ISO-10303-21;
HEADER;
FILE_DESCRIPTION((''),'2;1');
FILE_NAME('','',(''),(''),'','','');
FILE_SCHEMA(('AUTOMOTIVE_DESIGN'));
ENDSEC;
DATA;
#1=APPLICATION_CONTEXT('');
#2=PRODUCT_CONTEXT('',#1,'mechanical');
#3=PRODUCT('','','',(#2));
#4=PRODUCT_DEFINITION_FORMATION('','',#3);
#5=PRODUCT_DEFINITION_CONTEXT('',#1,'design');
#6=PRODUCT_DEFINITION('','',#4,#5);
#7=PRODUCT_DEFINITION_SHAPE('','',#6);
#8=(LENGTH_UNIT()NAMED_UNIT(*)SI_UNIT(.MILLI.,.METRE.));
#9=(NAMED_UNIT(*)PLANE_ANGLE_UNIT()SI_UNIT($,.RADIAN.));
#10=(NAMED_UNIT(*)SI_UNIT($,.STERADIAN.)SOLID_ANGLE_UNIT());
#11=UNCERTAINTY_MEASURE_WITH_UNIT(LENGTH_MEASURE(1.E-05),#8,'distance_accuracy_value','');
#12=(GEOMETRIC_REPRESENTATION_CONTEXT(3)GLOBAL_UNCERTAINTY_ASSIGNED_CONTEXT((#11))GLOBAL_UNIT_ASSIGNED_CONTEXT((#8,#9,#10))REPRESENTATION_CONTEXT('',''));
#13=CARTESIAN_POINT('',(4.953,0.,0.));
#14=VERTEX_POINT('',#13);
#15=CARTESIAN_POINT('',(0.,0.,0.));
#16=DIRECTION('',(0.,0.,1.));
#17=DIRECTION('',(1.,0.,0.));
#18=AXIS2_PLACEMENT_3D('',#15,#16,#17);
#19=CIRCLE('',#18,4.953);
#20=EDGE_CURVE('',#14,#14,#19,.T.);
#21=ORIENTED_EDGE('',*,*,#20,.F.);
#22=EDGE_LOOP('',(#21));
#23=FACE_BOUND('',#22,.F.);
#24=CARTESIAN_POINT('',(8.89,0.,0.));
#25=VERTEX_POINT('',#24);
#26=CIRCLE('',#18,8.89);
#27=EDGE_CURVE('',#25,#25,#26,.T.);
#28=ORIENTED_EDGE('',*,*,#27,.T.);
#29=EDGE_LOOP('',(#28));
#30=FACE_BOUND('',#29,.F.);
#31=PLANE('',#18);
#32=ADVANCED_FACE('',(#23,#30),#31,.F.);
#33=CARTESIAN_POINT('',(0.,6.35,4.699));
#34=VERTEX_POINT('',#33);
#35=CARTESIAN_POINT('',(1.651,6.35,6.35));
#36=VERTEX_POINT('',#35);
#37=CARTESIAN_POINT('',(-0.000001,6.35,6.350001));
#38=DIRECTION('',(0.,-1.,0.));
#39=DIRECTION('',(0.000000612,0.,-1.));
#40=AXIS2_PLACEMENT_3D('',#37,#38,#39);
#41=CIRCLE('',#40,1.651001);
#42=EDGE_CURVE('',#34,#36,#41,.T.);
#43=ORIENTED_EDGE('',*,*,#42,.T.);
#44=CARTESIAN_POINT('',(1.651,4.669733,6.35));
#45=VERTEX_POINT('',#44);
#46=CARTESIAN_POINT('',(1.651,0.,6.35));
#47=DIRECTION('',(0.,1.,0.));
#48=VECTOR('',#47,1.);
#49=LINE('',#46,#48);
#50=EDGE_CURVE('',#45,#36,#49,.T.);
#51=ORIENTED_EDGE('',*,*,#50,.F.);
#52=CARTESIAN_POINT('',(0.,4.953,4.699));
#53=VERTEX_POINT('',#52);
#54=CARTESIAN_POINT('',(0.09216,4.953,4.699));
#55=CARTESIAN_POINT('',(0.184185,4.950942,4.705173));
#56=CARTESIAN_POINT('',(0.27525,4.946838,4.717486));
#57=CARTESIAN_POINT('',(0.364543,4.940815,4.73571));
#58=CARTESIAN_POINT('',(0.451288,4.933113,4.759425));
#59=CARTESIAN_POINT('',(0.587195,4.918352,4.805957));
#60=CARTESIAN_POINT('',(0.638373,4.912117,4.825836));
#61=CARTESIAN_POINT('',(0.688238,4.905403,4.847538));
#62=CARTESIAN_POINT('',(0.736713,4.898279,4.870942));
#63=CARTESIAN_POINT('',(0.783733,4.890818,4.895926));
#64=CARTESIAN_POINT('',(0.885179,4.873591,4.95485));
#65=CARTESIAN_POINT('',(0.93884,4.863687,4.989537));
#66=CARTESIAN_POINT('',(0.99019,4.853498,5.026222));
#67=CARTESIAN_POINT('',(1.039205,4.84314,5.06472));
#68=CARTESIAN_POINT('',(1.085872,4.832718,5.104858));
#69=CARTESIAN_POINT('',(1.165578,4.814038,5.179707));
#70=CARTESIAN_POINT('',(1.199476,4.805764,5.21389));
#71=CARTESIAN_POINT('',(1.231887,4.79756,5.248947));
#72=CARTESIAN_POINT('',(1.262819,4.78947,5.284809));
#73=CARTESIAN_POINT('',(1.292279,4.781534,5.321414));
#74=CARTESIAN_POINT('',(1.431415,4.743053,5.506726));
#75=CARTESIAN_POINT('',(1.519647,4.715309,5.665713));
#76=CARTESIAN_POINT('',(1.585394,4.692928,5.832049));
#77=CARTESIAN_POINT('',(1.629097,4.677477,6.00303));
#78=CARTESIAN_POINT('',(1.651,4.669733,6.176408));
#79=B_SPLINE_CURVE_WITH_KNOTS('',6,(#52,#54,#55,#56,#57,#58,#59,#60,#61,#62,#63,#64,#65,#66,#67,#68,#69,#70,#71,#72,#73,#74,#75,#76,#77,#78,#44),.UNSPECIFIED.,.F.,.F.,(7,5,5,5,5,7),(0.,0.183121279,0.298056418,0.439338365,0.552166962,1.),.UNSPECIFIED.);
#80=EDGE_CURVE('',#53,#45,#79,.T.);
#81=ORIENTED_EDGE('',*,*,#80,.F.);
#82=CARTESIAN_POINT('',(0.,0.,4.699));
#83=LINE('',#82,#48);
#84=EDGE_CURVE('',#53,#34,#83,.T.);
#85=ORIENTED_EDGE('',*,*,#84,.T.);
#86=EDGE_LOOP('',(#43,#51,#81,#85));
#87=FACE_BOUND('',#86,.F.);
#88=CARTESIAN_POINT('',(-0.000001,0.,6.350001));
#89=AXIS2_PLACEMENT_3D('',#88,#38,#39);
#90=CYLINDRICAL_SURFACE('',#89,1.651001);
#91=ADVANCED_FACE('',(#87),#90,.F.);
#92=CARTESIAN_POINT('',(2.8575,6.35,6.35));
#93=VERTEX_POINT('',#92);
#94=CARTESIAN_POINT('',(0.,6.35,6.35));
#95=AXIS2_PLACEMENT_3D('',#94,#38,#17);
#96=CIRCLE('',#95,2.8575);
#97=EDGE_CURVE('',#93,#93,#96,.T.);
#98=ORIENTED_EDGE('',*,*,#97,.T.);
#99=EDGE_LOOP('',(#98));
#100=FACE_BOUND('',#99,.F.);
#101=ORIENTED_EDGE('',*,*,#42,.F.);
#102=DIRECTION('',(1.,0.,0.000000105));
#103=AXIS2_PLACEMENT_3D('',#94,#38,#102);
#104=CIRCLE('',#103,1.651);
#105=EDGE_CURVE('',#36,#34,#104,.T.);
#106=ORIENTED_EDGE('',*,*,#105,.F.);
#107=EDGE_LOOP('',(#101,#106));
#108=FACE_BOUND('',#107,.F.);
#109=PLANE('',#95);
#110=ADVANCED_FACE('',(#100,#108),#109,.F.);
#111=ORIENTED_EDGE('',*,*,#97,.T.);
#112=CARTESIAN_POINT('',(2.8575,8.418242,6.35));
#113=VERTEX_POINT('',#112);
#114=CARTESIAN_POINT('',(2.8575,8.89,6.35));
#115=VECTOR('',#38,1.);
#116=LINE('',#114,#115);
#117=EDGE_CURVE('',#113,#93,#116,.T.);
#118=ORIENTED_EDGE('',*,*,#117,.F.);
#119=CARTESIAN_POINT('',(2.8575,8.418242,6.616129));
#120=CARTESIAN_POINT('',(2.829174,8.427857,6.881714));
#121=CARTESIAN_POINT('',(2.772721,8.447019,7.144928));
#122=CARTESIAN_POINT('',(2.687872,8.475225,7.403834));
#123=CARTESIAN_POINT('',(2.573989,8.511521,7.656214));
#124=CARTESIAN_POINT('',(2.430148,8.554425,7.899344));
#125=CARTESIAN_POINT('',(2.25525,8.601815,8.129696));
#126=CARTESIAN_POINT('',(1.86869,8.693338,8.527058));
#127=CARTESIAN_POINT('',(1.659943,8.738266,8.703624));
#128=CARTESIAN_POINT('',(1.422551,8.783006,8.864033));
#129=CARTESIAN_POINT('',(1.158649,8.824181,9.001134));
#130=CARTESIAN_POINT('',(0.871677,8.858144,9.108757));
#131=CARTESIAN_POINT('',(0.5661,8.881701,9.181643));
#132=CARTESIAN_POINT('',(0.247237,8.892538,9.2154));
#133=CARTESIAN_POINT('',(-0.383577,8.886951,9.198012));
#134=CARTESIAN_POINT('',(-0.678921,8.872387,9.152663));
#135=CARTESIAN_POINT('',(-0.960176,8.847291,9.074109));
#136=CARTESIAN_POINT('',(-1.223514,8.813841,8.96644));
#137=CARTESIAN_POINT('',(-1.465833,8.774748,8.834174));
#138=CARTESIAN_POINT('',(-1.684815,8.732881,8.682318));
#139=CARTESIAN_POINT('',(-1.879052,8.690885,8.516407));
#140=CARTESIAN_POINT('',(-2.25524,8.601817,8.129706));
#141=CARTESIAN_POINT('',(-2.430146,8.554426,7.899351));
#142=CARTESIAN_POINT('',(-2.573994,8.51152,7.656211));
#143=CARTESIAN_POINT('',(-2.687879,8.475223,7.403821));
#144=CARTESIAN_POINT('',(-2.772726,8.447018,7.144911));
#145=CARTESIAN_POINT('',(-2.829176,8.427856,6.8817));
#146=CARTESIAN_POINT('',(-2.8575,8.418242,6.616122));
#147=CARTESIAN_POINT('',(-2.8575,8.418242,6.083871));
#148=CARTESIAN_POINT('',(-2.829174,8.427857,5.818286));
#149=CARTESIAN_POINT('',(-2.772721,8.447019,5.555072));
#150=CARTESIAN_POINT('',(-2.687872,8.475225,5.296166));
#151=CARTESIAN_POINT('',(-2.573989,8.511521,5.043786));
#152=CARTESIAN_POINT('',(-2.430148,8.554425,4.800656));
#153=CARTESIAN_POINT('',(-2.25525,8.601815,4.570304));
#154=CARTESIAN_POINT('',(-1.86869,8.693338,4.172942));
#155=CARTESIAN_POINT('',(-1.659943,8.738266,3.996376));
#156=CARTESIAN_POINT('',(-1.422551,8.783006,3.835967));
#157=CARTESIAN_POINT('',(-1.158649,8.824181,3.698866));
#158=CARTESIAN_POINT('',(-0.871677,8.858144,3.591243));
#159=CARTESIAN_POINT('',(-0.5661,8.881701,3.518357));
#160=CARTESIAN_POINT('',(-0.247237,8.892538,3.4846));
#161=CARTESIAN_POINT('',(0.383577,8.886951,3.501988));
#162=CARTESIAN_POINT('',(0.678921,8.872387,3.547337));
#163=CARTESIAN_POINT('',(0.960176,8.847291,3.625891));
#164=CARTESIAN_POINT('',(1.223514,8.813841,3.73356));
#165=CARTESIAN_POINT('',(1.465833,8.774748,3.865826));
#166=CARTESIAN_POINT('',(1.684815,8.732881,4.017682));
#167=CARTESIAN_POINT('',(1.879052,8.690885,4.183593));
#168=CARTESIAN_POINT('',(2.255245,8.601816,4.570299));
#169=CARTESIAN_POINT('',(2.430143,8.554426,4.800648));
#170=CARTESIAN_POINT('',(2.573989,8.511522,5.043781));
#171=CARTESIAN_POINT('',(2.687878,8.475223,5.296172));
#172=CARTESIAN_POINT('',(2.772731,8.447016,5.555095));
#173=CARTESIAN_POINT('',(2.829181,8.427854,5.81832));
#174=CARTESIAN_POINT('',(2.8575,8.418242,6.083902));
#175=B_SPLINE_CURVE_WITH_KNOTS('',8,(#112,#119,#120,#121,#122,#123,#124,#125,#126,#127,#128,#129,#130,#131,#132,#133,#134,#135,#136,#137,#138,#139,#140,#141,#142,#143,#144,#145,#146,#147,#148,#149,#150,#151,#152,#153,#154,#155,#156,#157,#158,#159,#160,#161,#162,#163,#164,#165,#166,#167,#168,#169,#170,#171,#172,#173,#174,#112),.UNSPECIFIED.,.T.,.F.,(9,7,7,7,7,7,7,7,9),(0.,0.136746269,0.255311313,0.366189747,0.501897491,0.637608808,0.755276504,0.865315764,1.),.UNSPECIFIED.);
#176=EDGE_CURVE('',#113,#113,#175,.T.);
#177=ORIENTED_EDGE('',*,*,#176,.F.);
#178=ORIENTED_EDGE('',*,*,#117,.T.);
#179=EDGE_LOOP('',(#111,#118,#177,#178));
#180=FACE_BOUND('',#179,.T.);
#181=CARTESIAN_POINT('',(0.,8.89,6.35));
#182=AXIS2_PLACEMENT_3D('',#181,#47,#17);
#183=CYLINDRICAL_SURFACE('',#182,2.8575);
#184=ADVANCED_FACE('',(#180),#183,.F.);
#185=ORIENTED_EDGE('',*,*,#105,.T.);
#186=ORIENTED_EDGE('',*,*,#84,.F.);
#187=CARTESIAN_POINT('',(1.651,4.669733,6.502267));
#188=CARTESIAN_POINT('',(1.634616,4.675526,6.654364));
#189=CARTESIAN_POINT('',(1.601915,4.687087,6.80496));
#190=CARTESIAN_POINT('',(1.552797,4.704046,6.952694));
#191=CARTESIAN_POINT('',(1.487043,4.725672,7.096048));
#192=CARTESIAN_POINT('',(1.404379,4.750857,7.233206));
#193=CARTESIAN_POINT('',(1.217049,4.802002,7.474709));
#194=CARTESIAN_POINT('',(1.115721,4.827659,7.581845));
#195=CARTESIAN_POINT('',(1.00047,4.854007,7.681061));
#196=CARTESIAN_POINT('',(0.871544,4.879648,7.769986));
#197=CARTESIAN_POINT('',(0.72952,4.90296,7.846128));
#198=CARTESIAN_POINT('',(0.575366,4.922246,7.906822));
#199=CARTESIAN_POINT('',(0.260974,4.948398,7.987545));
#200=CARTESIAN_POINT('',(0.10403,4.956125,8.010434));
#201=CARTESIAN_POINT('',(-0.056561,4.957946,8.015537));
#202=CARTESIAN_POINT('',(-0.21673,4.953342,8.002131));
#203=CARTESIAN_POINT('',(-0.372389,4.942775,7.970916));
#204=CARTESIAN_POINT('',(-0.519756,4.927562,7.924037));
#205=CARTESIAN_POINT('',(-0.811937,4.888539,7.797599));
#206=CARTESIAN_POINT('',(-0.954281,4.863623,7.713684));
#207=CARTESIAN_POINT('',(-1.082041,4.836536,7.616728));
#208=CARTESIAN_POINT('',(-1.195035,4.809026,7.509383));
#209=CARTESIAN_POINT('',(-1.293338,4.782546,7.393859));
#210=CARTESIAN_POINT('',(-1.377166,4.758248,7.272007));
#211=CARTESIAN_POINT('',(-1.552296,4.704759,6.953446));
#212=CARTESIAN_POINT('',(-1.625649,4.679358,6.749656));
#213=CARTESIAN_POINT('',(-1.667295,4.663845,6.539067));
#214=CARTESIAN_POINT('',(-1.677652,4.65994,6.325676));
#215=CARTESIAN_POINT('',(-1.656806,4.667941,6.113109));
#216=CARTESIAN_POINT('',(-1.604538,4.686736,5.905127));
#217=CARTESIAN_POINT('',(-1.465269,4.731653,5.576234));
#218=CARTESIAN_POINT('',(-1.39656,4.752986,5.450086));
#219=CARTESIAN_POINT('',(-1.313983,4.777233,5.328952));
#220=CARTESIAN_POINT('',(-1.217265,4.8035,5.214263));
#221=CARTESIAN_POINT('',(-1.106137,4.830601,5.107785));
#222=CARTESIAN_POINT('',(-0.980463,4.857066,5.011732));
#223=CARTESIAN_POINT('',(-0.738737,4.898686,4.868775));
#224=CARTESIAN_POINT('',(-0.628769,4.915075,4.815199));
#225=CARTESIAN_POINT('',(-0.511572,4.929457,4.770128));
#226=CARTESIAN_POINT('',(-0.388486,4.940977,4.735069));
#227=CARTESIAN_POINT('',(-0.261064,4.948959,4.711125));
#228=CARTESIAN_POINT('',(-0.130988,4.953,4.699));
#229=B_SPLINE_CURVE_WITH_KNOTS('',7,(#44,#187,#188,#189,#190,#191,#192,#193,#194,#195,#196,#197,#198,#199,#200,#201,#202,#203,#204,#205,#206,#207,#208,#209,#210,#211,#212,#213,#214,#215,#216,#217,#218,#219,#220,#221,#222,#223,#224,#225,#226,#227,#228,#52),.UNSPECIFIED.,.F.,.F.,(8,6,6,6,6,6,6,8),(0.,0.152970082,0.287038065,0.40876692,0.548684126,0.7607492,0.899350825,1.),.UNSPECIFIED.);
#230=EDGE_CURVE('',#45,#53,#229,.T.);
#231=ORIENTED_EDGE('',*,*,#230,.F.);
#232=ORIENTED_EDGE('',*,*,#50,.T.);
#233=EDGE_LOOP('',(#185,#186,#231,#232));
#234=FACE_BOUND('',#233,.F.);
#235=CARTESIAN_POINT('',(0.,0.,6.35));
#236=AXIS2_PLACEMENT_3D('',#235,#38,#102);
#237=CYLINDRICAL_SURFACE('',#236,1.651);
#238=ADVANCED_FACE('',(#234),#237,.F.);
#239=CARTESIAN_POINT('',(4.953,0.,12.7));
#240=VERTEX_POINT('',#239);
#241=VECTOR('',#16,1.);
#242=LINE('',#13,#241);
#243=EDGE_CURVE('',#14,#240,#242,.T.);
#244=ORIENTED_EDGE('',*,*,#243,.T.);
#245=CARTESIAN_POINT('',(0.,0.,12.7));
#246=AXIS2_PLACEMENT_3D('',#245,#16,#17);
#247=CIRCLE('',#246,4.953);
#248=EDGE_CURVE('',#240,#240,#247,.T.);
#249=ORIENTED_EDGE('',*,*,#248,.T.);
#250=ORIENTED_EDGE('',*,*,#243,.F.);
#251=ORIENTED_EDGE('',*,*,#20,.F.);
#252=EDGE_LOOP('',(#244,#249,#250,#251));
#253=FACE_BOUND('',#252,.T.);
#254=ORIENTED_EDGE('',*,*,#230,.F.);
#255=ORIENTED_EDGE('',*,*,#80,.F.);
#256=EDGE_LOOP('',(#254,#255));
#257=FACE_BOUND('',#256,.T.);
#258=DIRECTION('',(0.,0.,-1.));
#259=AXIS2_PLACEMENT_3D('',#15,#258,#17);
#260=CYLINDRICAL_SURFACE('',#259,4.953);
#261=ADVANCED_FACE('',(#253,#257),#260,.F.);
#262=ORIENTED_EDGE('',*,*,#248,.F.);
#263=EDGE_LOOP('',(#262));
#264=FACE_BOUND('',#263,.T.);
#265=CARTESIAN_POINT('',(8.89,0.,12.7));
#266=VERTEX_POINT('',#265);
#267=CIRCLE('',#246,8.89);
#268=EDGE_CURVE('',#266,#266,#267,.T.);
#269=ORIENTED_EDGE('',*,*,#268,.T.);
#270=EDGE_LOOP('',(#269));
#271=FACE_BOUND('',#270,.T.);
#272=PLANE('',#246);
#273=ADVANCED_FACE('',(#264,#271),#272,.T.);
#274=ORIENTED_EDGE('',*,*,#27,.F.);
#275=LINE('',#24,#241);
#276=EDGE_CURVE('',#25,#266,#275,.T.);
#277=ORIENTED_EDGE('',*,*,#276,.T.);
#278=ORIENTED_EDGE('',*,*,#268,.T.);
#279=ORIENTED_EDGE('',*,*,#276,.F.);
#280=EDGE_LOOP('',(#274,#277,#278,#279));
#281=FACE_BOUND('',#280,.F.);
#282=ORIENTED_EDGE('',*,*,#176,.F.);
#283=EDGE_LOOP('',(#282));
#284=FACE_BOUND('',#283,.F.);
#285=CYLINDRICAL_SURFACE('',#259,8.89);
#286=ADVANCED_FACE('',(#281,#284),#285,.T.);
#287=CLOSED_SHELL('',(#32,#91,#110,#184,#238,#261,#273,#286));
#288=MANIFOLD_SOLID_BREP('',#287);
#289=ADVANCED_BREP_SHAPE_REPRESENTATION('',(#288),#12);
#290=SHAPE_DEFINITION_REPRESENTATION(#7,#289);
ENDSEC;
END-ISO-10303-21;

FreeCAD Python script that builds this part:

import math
import FreeCAD as App
import Part
import Sketcher
Q = App.Units.Quantity

doc = App.newDocument("Part")
body = doc.addObject("PartDesign::Body", "Body")

# Sketch on XY plane
sketch1 = body.newObject("Sketcher::SketchObject", "Sketch")
sketch1.AttachmentSupport = (doc.getObject("XY_Plane"), [""])
sketch1.MapMode = "FlatFace"
sketch1.addGeometry([
    Part.Circle(App.Vector(0, 0, 0), App.Vector(0, 0, 1), 8.9),
    Part.Circle(App.Vector(0, 0, 0), App.Vector(0, 0, 1), 5),
], False)
sketch1.addConstraint([
    Sketcher.Constraint("Coincident", 0, 3, -1, 1),
    Sketcher.Constraint("Coincident", 1, 3, -1, 1),
    Sketcher.Constraint("Diameter", 0, Q("0.7 in")),
    Sketcher.Constraint("Diameter", 1, Q("0.39 in")),
])
pad1 = body.newObject("PartDesign::Pad", "Pad")
pad1.Profile = sketch1
pad1.Length = Q("0.5 in")

# Sketch on XZ plane
sketch2 = body.newObject("Sketcher::SketchObject", "Sketch001")
sketch2.AttachmentSupport = (doc.getObject("XZ_Plane"), [""])
sketch2.MapMode = "FlatFace"
sketch2.addGeometry([
    Part.ArcOfCircle(Part.Circle(App.Vector(0, 6.4, 0), App.Vector(0, 0, 1), 1.7), math.radians(-90), math.radians(0)),
    Part.ArcOfCircle(Part.Circle(App.Vector(0, 6.3, 0), App.Vector(0, 0, 1), 1.7), math.radians(0), math.radians(270)),
], False)
sketch2.addConstraint([
    Sketcher.Constraint("Tangent", 0, 1, 1, 2),
    Sketcher.Constraint("Coincident", 1, 1, 0, 2),
    Sketcher.Constraint("PointOnObject", 0, 3, -2),
    Sketcher.Constraint("PointOnObject", 0, 1, -2),
    Sketcher.Constraint("Horizontal", 0, 3, 1, 1),
    Sketcher.Constraint("Radius", 0, Q("0.065 in")),
    Sketcher.Constraint("DistanceY", -1, 1, 0, 3, Q("0.25 in")),
])
pocket1 = body.newObject("PartDesign::Pocket", "Pocket")
pocket1.Profile = sketch2
pocket1.Length = Q("1 in")

# Sketch on XZ plane
sketch3 = body.newObject("Sketcher::SketchObject", "Sketch002")
sketch3.AttachmentSupport = (doc.getObject("XZ_Plane"), [""])
sketch3.MapMode = "FlatFace"
sketch3.AttachmentOffset = App.Placement(App.Vector(0, 0, -0.35 * 25.4), App.Rotation())
sketch3.addGeometry(Part.Circle(App.Vector(0, 6.3, 0), App.Vector(0, 0, 1), 2.9), False)
sketch3.addConstraint([
    Sketcher.Constraint("PointOnObject", 0, 3, -2),
    Sketcher.Constraint("Diameter", 0, Q("0.225 in")),
    Sketcher.Constraint("DistanceY", -1, 1, 0, 3, Q("0.25 in")),
])
pocket2 = body.newObject("PartDesign::Pocket", "Pocket001")
pocket2.Profile = sketch3
pocket2.Length = Q("0.1 in")
pocket2.Reversed = True

doc.recompute()
